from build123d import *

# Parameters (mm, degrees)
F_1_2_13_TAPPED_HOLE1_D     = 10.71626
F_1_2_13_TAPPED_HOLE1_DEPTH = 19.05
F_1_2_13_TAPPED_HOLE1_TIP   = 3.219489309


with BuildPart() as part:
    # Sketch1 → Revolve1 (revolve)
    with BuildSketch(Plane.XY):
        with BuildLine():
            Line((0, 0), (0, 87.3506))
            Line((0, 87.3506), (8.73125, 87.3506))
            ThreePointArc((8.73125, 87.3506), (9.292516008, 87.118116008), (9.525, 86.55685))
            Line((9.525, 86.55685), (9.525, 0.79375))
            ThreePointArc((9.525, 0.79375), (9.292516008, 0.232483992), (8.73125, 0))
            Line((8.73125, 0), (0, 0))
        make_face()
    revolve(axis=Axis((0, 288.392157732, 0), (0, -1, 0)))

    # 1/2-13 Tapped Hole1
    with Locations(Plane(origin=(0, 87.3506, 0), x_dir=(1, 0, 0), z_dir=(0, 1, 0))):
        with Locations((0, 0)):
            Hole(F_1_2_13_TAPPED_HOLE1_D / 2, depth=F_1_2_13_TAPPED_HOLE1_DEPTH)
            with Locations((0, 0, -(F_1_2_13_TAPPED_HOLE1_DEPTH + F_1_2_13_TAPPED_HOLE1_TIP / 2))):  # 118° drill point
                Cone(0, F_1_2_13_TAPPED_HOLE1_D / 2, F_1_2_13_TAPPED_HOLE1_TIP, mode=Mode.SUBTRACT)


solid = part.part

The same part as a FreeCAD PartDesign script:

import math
import FreeCAD as App
import Part
import Sketcher
from FreeCAD import Vector
Q = App.Units.Quantity

doc = App.newDocument("Part")
params = doc.addObject("Spreadsheet::Sheet", "Params")
for row, (alias, value) in enumerate([
    ("sketch1_radius", "0.03125 in"),
    ("sketch1_width", "0.34375 in"),
    ("sketch1_height", "3.439 in"),
    ("revolution_angle", "360 deg"),
    ("hole_diameter", "0.4219 in"),
    ("hole_depth", "0.75 in"),
], start=1):
    params.set(f"A{row}", alias)
    params.set(f"B{row}", "=" + value)
    params.setAlias(f"B{row}", alias)

body = doc.addObject("PartDesign::Body", "Body")

sketch1 = body.newObject("Sketcher::SketchObject", "Sketch")
sketch1.AttachmentSupport = (doc.getObject("XY_Plane"), [""])
sketch1.MapMode = "FlatFace"
sketch1.addGeometry([
    Part.LineSegment(Vector(0, 87.4, 0), Vector(0, 0, 0)),
    Part.LineSegment(Vector(0, 0, 0), Vector(8.7, 0, 0)),
    Part.ArcOfCircle(Part.Circle(Vector(8.7, 0.8, 0), Vector(0, 0, 1), 0.8), math.radians(-90), math.radians(0)),
    Part.LineSegment(Vector(9.5, 0.8, 0), Vector(9.5, 86.6, 0)),
    Part.ArcOfCircle(Part.Circle(Vector(8.7, 86.6, 0), Vector(0, 0, 1), 0.8), math.radians(0), math.radians(90)),
    Part.LineSegment(Vector(8.7, 87.4, 0), Vector(0, 87.4, 0)),
], False)
sketch1.addConstraint([
    Sketcher.Constraint("Coincident", 0, 2, 1, 1),
    Sketcher.Constraint("Tangent", 1, 2, 2, 1),
    Sketcher.Constraint("Tangent", 2, 2, 3, 1),
    Sketcher.Constraint("Tangent", 3, 2, 4, 1),
    Sketcher.Constraint("Tangent", 4, 2, 5, 1),
    Sketcher.Constraint("Coincident", 5, 2, 0, 1),
    Sketcher.Constraint("Vertical", 0),
    Sketcher.Constraint("Horizontal", 1),
    Sketcher.Constraint("Vertical", 3),
    Sketcher.Constraint("Horizontal", 5),
    Sketcher.Constraint("Coincident", 0, 2, -1, 1),
    Sketcher.Constraint("Equal", 2, 4),
    Sketcher.Constraint("Radius", 2, Q("0.03125 in")),
    Sketcher.Constraint("DistanceX", 1, 1, 1, 2, Q("0.34375 in")),
    Sketcher.Constraint("DistanceY", 0, 2, 0, 1, Q("3.439 in")),
])
sketch1.setExpression("Constraints[12]", "Params.sketch1_radius")
sketch1.setExpression("Constraints[13]", "Params.sketch1_width")
sketch1.setExpression("Constraints[14]", "Params.sketch1_height")
revolution = body.newObject("PartDesign::Revolution", "Revolution")
revolution.Profile = sketch1
revolution.ReferenceAxis = (sketch1, ["V_Axis"])
revolution.setExpression("Angle", "Params.revolution_angle")

sketch2 = body.newObject("Sketcher::SketchObject", "Sketch001")
sketch2.AttachmentSupport = (doc.getObject("XZ_Plane"), [""])
sketch2.MapMode = "FlatFace"
sketch2.AttachmentOffset = App.Placement(Vector(0, 0, -3.439 * 25.4), App.Rotation())
sketch2.addGeometry(Part.Circle(Vector(0, 0, 0), Vector(0, 0, 1), 5), False)
sketch2.addConstraint([
    Sketcher.Constraint("Coincident", 0, 3, -1, 1),
    Sketcher.Constraint("Diameter", 0, Q("0.4219 in")),
])
doc.recompute()
hole = body.newObject("PartDesign::Hole", "Hole")
hole.Profile = sketch2
hole.ThreadType = "None"
hole.setExpression("Diameter", "Params.hole_diameter")
hole.DepthType = "Dimension"
hole.setExpression("Depth", "Params.hole_depth")
hole.DrillPoint = "Angled"
hole.DrillPointAngle = 118
hole.Reversed = True

doc.recompute()
